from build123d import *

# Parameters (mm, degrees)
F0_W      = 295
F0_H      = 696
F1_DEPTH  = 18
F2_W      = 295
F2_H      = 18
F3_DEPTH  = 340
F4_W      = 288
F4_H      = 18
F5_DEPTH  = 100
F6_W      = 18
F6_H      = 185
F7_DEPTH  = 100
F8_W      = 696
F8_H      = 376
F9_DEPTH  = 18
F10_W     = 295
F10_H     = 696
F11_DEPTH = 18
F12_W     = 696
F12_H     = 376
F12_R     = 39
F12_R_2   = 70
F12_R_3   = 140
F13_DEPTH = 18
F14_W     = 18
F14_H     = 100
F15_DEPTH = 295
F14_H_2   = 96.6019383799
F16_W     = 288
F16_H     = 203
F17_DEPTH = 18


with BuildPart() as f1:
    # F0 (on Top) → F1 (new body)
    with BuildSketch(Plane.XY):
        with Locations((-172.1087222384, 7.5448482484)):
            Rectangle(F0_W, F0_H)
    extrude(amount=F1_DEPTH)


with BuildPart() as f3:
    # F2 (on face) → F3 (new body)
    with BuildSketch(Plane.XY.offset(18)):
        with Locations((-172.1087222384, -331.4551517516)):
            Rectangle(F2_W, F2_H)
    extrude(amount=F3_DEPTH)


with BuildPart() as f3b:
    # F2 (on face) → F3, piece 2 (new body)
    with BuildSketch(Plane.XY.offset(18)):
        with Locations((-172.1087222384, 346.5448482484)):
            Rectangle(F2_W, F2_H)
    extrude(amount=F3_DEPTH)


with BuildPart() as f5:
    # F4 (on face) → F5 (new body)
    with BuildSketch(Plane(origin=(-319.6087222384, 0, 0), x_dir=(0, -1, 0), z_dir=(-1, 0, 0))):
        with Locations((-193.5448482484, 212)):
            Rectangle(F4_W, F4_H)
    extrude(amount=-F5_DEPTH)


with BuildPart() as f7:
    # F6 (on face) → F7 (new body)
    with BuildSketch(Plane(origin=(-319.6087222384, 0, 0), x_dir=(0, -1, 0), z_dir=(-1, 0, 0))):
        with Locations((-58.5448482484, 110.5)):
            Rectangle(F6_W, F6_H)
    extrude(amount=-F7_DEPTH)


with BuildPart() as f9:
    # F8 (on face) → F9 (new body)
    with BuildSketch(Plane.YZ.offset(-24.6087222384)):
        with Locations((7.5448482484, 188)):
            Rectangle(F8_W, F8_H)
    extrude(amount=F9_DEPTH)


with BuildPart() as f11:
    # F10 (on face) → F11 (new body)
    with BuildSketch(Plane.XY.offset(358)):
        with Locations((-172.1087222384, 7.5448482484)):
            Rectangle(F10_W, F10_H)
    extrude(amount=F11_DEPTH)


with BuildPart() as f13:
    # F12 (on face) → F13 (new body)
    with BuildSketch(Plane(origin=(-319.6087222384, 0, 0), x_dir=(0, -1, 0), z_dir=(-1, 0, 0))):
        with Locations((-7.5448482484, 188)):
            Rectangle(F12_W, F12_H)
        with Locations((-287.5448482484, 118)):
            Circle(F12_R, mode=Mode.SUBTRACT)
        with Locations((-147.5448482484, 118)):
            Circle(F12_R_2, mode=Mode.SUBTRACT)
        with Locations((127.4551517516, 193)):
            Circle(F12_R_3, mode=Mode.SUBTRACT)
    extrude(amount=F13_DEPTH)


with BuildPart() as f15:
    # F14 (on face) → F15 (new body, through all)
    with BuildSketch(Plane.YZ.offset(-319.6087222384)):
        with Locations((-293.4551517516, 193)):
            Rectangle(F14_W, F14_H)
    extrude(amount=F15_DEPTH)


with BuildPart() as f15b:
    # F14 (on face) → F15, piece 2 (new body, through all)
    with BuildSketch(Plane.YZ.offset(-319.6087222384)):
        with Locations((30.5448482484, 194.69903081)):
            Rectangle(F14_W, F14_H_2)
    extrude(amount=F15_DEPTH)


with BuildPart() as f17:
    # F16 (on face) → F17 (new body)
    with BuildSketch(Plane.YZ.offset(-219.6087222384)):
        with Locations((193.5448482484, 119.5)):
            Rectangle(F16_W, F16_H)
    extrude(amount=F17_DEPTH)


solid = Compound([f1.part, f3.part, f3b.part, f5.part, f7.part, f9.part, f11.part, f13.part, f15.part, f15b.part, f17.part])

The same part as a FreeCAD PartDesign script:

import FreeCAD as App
import Part
import Sketcher


def add_polygon(sketch, points):
    """Adds a closed chain of lines whose ends are joined by coincident constraints."""
    first, n = sketch.GeometryCount, len(points)
    for a, b in zip(points, points[1:] + points[:1]):
        sketch.addGeometry(Part.LineSegment(App.Vector(*a, 0), App.Vector(*b, 0)), False)
    for i in range(n):
        sketch.addConstraint(Sketcher.Constraint("Coincident", first + i, 2, first + (i + 1) % n, 1))

doc = App.newDocument("Part")
body = doc.addObject("PartDesign::Body", "Body")

sketch1 = doc.addObject("Sketcher::SketchObject", "Sketch")
body.addObject(sketch1)
sketch1.AttachmentSupport = (doc.XY_Plane, [""])
sketch1.MapMode = "FlatFace"
add_polygon(sketch1, [(-319.608722, 355.544848), (-319.608722, -340.455152), (-24.608722, -340.455152), (-24.608722, 355.544848)])
sketch1.addConstraint([
    Sketcher.Constraint("Vertical", 0),
    Sketcher.Constraint("Horizontal", 1),
    Sketcher.Constraint("Vertical", 2),
    Sketcher.Constraint("Horizontal", 3),
    Sketcher.Constraint("DistanceX", 1, 1, 1, 2, 295.0),
    Sketcher.Constraint("DistanceY", 0, 2, 0, 1, 696.0),
    Sketcher.Constraint("DistanceY", 0, 2, -1, 1, 340.455152),
    Sketcher.Constraint("DistanceX", 0, 2, -1, 1, 319.608722),
])
pad1 = doc.addObject("PartDesign::Pad", "Pad")
body.addObject(pad1)
pad1.Profile = sketch1
pad1.Length = 18
body2 = doc.addObject("PartDesign::Body", "Body001")

sketch2 = doc.addObject("Sketcher::SketchObject", "Sketch001")
body2.addObject(sketch2)
sketch2.AttachmentSupport = (doc.getObject("XY_Plane001"), [""])
sketch2.MapMode = "FlatFace"
sketch2.AttachmentOffset = App.Placement(App.Vector(0, 0, 18), App.Rotation())
add_polygon(sketch2, [(-319.608722, -322.455152), (-319.608722, -340.455152), (-24.608722, -340.455152), (-24.608722, -322.455152)])
sketch2.addConstraint([
    Sketcher.Constraint("Vertical", 0),
    Sketcher.Constraint("Horizontal", 1),
    Sketcher.Constraint("Vertical", 2),
    Sketcher.Constraint("Horizontal", 3),
    Sketcher.Constraint("DistanceX", 1, 1, 1, 2, 295.0),
    Sketcher.Constraint("DistanceY", 0, 2, 0, 1, 18.0),
    Sketcher.Constraint("DistanceY", 0, 2, -1, 1, 340.455152),
    Sketcher.Constraint("DistanceX", 0, 2, -1, 1, 319.608722),
])
pad2 = doc.addObject("PartDesign::Pad", "Pad001")
body2.addObject(pad2)
pad2.Profile = sketch2
pad2.Length = 340
body3 = doc.addObject("PartDesign::Body", "Body002")

sketch3 = doc.addObject("Sketcher::SketchObject", "Sketch002")
body3.addObject(sketch3)
sketch3.AttachmentSupport = (doc.getObject("XY_Plane002"), [""])
sketch3.MapMode = "FlatFace"
sketch3.AttachmentOffset = App.Placement(App.Vector(0, 0, 18), App.Rotation())
add_polygon(sketch3, [(-319.608722, 355.544848), (-319.608722, 337.544848), (-24.608722, 337.544848), (-24.608722, 355.544848)])
sketch3.addConstraint([
    Sketcher.Constraint("Vertical", 0),
    Sketcher.Constraint("Horizontal", 1),
    Sketcher.Constraint("Vertical", 2),
    Sketcher.Constraint("Horizontal", 3),
    Sketcher.Constraint("DistanceX", 1, 1, 1, 2, 295.0),
    Sketcher.Constraint("DistanceY", 0, 2, 0, 1, 18.0),
    Sketcher.Constraint("DistanceY", -1, 1, 0, 2, 337.544848),
    Sketcher.Constraint("DistanceX", 0, 2, -1, 1, 319.608722),
])
pad3 = doc.addObject("PartDesign::Pad", "Pad002")
body3.addObject(pad3)
pad3.Profile = sketch3
pad3.Length = 340
body4 = doc.addObject("PartDesign::Body", "Body003")

sketch4 = doc.addObject("Sketcher::SketchObject", "Sketch003")
body4.addObject(sketch4)
sketch4.AttachmentSupport = (doc.getObject("YZ_Plane003"), [""])
sketch4.MapMode = "FlatFace"
sketch4.AttachmentOffset = App.Placement(App.Vector(0, 0, -319.608722), App.Rotation())
add_polygon(sketch4, [(337.544848, 221), (337.544848, 203), (49.544848, 203), (49.544848, 221)])
sketch4.addConstraint([
    Sketcher.Constraint("Vertical", 0),
    Sketcher.Constraint("Horizontal", 1),
    Sketcher.Constraint("Vertical", 2),
    Sketcher.Constraint("Horizontal", 3),
    Sketcher.Constraint("DistanceX", 1, 2, 1, 1, 288.0),
    Sketcher.Constraint("DistanceY", 0, 2, 0, 1, 18.0),
    Sketcher.Constraint("DistanceY", -1, 1, 0, 2, 203.0),
    Sketcher.Constraint("DistanceX", -1, 1, 0, 2, 337.544848),
])
pad4 = doc.addObject("PartDesign::Pad", "Pad003")
body4.addObject(pad4)
pad4.Profile = sketch4
pad4.Length = 100
body5 = doc.addObject("PartDesign::Body", "Body004")

sketch5 = doc.addObject("Sketcher::SketchObject", "Sketch004")
body5.addObject(sketch5)
sketch5.AttachmentSupport = (doc.getObject("YZ_Plane004"), [""])
sketch5.MapMode = "FlatFace"
sketch5.AttachmentOffset = App.Placement(App.Vector(0, 0, -319.608722), App.Rotation())
add_polygon(sketch5, [(67.544848, 203), (67.544848, 18), (49.544848, 18), (49.544848, 203)])
sketch5.addConstraint([
    Sketcher.Constraint("Vertical", 0),
    Sketcher.Constraint("Horizontal", 1),
    Sketcher.Constraint("Vertical", 2),
    Sketcher.Constraint("Horizontal", 3),
    Sketcher.Constraint("DistanceX", 1, 2, 1, 1, 18.0),
    Sketcher.Constraint("DistanceY", 0, 2, 0, 1, 185.0),
    Sketcher.Constraint("DistanceY", -1, 1, 0, 2, 18.0),
    Sketcher.Constraint("DistanceX", -1, 1, 0, 2, 67.544848),
])
pad5 = doc.addObject("PartDesign::Pad", "Pad004")
body5.addObject(pad5)
pad5.Profile = sketch5
pad5.Length = 100
body6 = doc.addObject("PartDesign::Body", "Body005")

sketch6 = doc.addObject("Sketcher::SketchObject", "Sketch005")
body6.addObject(sketch6)
sketch6.AttachmentSupport = (doc.getObject("YZ_Plane005"), [""])
sketch6.MapMode = "FlatFace"
sketch6.AttachmentOffset = App.Placement(App.Vector(0, 0, -24.608722), App.Rotation())
add_polygon(sketch6, [(-340.455152, 376), (-340.455152, 0), (355.544848, 0), (355.544848, 376)])
sketch6.addConstraint([
    Sketcher.Constraint("Vertical", 0),
    Sketcher.Constraint("Horizontal", 1),
    Sketcher.Constraint("Vertical", 2),
    Sketcher.Constraint("Horizontal", 3),
    Sketcher.Constraint("PointOnObject", 0, 2, -1),
    Sketcher.Constraint("DistanceX", 1, 1, 1, 2, 696.0),
    Sketcher.Constraint("DistanceY", 0, 2, 0, 1, 376.0),
    Sketcher.Constraint("DistanceX", 0, 2, -1, 1, 340.455152),
])
pad6 = doc.addObject("PartDesign::Pad", "Pad005")
body6.addObject(pad6)
pad6.Profile = sketch6
pad6.Length = 18
body7 = doc.addObject("PartDesign::Body", "Body006")

sketch7 = doc.addObject("Sketcher::SketchObject", "Sketch006")
body7.addObject(sketch7)
sketch7.AttachmentSupport = (doc.getObject("XY_Plane006"), [""])
sketch7.MapMode = "FlatFace"
sketch7.AttachmentOffset = App.Placement(App.Vector(0, 0, 358), App.Rotation())
add_polygon(sketch7, [(-319.608722, 355.544848), (-319.608722, -340.455152), (-24.608722, -340.455152), (-24.608722, 355.544848)])
sketch7.addConstraint([
    Sketcher.Constraint("Vertical", 0),
    Sketcher.Constraint("Horizontal", 1),
    Sketcher.Constraint("Vertical", 2),
    Sketcher.Constraint("Horizontal", 3),
    Sketcher.Constraint("DistanceX", 1, 1, 1, 2, 295.0),
    Sketcher.Constraint("DistanceY", 0, 2, 0, 1, 696.0),
    Sketcher.Constraint("DistanceY", 0, 2, -1, 1, 340.455152),
    Sketcher.Constraint("DistanceX", 0, 2, -1, 1, 319.608722),
])
pad7 = doc.addObject("PartDesign::Pad", "Pad006")
body7.addObject(pad7)
pad7.Profile = sketch7
pad7.Length = 18
body8 = doc.addObject("PartDesign::Body", "Body007")

sketch8 = doc.addObject("Sketcher::SketchObject", "Sketch007")
body8.addObject(sketch8)
sketch8.AttachmentSupport = (doc.getObject("YZ_Plane007"), [""])
sketch8.MapMode = "FlatFace"
sketch8.AttachmentOffset = App.Placement(App.Vector(0, 0, -319.608722), App.Rotation())
add_polygon(sketch8, [(355.544848, 376), (355.544848, 0), (-340.455152, 0), (-340.455152, 376)])
sketch8.addGeometry(Part.Circle(App.Vector(287.544848, 118, 0), App.Vector(0, 0, 1), 39), False)
sketch8.addGeometry(Part.Circle(App.Vector(147.544848, 118, 0), App.Vector(0, 0, 1), 70), False)
sketch8.addGeometry(Part.Circle(App.Vector(-127.455152, 193, 0), App.Vector(0, 0, 1), 140), False)
sketch8.addConstraint([
    Sketcher.Constraint("Vertical", 0),
    Sketcher.Constraint("Horizontal", 1),
    Sketcher.Constraint("Vertical", 2),
    Sketcher.Constraint("Horizontal", 3),
    Sketcher.Constraint("PointOnObject", 0, 2, -1),
    Sketcher.Constraint("Horizontal", 4, 3, 5, 3),
    Sketcher.Constraint("Diameter", 4, 78.0),
    Sketcher.Constraint("Diameter", 5, 140.0),
    Sketcher.Constraint("Diameter", 6, 280.0),
    Sketcher.Constraint("DistanceX", 1, 2, 1, 1, 696.0),
    Sketcher.Constraint("DistanceY", 0, 2, 0, 1, 376.0),
    Sketcher.Constraint("DistanceY", -1, 1, 4, 3, 118.0),
    Sketcher.Constraint("DistanceY", -1, 1, 6, 3, 193.0),
    Sketcher.Constraint("DistanceX", 5, 3, 4, 3, 140.0),
    Sketcher.Constraint("DistanceX", 6, 3, 5, 3, 275.0),
    Sketcher.Constraint("DistanceX", 4, 3, 0, 2, 68.0),
    Sketcher.Constraint("DistanceX", -1, 1, 4, 3, 287.544848),
])
pad8 = doc.addObject("PartDesign::Pad", "Pad007")
body8.addObject(pad8)
pad8.Profile = sketch8
pad8.Length = 18
pad8.Reversed = True
body9 = doc.addObject("PartDesign::Body", "Body008")

sketch9 = doc.addObject("Sketcher::SketchObject", "Sketch008")
body9.addObject(sketch9)
sketch9.AttachmentSupport = (doc.getObject("YZ_Plane008"), [""])
sketch9.MapMode = "FlatFace"
sketch9.AttachmentOffset = App.Placement(App.Vector(0, 0, -319.608722), App.Rotation())
add_polygon(sketch9, [(-302.455152, 243), (-302.455152, 143), (-284.455152, 143), (-284.455152, 243)])
sketch9.addConstraint([
    Sketcher.Constraint("Vertical", 0),
    Sketcher.Constraint("Horizontal", 1),
    Sketcher.Constraint("Vertical", 2),
    Sketcher.Constraint("Horizontal", 3),
    Sketcher.Constraint("DistanceX", 1, 1, 1, 2, 18.0),
    Sketcher.Constraint("DistanceY", 0, 2, 0, 1, 100.0),
    Sketcher.Constraint("DistanceY", -1, 1, 0, 2, 143.0),
    Sketcher.Constraint("DistanceX", 0, 2, -1, 1, 302.455152),
])
pad9 = doc.addObject("PartDesign::Pad", "Pad008")
body9.addObject(pad9)
pad9.Profile = sketch9
pad9.Length = 295
body10 = doc.addObject("PartDesign::Body", "Body009")

sketch10 = doc.addObject("Sketcher::SketchObject", "Sketch009")
body10.addObject(sketch10)
sketch10.AttachmentSupport = (doc.getObject("YZ_Plane009"), [""])
sketch10.MapMode = "FlatFace"
sketch10.AttachmentOffset = App.Placement(App.Vector(0, 0, -319.608722), App.Rotation())
add_polygon(sketch10, [(21.544848, 243), (21.544848, 146.398062), (39.544848, 146.398062), (39.544848, 243)])
sketch10.addConstraint([
    Sketcher.Constraint("Vertical", 0),
    Sketcher.Constraint("Horizontal", 1),
    Sketcher.Constraint("Vertical", 2),
    Sketcher.Constraint("Horizontal", 3),
    Sketcher.Constraint("DistanceX", 1, 1, 1, 2, 18.0),
    Sketcher.Constraint("DistanceY", -1, 1, 2, 2, 243.0),
    Sketcher.Constraint("DistanceY", 0, 2, 0, 1, 96.601938),
    Sketcher.Constraint("DistanceX", -1, 1, 0, 2, 21.544848),
])
pad10 = doc.addObject("PartDesign::Pad", "Pad009")
body10.addObject(pad10)
pad10.Profile = sketch10
pad10.Length = 295
body11 = doc.addObject("PartDesign::Body", "Body010")

sketch11 = doc.addObject("Sketcher::SketchObject", "Sketch010")
body11.addObject(sketch11)
sketch11.AttachmentSupport = (doc.getObject("YZ_Plane010"), [""])
sketch11.MapMode = "FlatFace"
sketch11.AttachmentOffset = App.Placement(App.Vector(0, 0, -219.608722), App.Rotation())
add_polygon(sketch11, [(49.544848, 221), (49.544848, 18), (337.544848, 18), (337.544848, 221)])
sketch11.addConstraint([
    Sketcher.Constraint("Vertical", 0),
    Sketcher.Constraint("Horizontal", 1),
    Sketcher.Constraint("Vertical", 2),
    Sketcher.Constraint("Horizontal", 3),
    Sketcher.Constraint("DistanceX", 1, 1, 1, 2, 288.0),
    Sketcher.Constraint("DistanceY", 0, 2, 0, 1, 203.0),
    Sketcher.Constraint("DistanceY", -1, 1, 0, 2, 18.0),
    Sketcher.Constraint("DistanceX", -1, 1, 0, 2, 49.544848),
])
pad11 = doc.addObject("PartDesign::Pad", "Pad010")
body11.addObject(pad11)
pad11.Profile = sketch11
pad11.Length = 18

doc.recompute()
